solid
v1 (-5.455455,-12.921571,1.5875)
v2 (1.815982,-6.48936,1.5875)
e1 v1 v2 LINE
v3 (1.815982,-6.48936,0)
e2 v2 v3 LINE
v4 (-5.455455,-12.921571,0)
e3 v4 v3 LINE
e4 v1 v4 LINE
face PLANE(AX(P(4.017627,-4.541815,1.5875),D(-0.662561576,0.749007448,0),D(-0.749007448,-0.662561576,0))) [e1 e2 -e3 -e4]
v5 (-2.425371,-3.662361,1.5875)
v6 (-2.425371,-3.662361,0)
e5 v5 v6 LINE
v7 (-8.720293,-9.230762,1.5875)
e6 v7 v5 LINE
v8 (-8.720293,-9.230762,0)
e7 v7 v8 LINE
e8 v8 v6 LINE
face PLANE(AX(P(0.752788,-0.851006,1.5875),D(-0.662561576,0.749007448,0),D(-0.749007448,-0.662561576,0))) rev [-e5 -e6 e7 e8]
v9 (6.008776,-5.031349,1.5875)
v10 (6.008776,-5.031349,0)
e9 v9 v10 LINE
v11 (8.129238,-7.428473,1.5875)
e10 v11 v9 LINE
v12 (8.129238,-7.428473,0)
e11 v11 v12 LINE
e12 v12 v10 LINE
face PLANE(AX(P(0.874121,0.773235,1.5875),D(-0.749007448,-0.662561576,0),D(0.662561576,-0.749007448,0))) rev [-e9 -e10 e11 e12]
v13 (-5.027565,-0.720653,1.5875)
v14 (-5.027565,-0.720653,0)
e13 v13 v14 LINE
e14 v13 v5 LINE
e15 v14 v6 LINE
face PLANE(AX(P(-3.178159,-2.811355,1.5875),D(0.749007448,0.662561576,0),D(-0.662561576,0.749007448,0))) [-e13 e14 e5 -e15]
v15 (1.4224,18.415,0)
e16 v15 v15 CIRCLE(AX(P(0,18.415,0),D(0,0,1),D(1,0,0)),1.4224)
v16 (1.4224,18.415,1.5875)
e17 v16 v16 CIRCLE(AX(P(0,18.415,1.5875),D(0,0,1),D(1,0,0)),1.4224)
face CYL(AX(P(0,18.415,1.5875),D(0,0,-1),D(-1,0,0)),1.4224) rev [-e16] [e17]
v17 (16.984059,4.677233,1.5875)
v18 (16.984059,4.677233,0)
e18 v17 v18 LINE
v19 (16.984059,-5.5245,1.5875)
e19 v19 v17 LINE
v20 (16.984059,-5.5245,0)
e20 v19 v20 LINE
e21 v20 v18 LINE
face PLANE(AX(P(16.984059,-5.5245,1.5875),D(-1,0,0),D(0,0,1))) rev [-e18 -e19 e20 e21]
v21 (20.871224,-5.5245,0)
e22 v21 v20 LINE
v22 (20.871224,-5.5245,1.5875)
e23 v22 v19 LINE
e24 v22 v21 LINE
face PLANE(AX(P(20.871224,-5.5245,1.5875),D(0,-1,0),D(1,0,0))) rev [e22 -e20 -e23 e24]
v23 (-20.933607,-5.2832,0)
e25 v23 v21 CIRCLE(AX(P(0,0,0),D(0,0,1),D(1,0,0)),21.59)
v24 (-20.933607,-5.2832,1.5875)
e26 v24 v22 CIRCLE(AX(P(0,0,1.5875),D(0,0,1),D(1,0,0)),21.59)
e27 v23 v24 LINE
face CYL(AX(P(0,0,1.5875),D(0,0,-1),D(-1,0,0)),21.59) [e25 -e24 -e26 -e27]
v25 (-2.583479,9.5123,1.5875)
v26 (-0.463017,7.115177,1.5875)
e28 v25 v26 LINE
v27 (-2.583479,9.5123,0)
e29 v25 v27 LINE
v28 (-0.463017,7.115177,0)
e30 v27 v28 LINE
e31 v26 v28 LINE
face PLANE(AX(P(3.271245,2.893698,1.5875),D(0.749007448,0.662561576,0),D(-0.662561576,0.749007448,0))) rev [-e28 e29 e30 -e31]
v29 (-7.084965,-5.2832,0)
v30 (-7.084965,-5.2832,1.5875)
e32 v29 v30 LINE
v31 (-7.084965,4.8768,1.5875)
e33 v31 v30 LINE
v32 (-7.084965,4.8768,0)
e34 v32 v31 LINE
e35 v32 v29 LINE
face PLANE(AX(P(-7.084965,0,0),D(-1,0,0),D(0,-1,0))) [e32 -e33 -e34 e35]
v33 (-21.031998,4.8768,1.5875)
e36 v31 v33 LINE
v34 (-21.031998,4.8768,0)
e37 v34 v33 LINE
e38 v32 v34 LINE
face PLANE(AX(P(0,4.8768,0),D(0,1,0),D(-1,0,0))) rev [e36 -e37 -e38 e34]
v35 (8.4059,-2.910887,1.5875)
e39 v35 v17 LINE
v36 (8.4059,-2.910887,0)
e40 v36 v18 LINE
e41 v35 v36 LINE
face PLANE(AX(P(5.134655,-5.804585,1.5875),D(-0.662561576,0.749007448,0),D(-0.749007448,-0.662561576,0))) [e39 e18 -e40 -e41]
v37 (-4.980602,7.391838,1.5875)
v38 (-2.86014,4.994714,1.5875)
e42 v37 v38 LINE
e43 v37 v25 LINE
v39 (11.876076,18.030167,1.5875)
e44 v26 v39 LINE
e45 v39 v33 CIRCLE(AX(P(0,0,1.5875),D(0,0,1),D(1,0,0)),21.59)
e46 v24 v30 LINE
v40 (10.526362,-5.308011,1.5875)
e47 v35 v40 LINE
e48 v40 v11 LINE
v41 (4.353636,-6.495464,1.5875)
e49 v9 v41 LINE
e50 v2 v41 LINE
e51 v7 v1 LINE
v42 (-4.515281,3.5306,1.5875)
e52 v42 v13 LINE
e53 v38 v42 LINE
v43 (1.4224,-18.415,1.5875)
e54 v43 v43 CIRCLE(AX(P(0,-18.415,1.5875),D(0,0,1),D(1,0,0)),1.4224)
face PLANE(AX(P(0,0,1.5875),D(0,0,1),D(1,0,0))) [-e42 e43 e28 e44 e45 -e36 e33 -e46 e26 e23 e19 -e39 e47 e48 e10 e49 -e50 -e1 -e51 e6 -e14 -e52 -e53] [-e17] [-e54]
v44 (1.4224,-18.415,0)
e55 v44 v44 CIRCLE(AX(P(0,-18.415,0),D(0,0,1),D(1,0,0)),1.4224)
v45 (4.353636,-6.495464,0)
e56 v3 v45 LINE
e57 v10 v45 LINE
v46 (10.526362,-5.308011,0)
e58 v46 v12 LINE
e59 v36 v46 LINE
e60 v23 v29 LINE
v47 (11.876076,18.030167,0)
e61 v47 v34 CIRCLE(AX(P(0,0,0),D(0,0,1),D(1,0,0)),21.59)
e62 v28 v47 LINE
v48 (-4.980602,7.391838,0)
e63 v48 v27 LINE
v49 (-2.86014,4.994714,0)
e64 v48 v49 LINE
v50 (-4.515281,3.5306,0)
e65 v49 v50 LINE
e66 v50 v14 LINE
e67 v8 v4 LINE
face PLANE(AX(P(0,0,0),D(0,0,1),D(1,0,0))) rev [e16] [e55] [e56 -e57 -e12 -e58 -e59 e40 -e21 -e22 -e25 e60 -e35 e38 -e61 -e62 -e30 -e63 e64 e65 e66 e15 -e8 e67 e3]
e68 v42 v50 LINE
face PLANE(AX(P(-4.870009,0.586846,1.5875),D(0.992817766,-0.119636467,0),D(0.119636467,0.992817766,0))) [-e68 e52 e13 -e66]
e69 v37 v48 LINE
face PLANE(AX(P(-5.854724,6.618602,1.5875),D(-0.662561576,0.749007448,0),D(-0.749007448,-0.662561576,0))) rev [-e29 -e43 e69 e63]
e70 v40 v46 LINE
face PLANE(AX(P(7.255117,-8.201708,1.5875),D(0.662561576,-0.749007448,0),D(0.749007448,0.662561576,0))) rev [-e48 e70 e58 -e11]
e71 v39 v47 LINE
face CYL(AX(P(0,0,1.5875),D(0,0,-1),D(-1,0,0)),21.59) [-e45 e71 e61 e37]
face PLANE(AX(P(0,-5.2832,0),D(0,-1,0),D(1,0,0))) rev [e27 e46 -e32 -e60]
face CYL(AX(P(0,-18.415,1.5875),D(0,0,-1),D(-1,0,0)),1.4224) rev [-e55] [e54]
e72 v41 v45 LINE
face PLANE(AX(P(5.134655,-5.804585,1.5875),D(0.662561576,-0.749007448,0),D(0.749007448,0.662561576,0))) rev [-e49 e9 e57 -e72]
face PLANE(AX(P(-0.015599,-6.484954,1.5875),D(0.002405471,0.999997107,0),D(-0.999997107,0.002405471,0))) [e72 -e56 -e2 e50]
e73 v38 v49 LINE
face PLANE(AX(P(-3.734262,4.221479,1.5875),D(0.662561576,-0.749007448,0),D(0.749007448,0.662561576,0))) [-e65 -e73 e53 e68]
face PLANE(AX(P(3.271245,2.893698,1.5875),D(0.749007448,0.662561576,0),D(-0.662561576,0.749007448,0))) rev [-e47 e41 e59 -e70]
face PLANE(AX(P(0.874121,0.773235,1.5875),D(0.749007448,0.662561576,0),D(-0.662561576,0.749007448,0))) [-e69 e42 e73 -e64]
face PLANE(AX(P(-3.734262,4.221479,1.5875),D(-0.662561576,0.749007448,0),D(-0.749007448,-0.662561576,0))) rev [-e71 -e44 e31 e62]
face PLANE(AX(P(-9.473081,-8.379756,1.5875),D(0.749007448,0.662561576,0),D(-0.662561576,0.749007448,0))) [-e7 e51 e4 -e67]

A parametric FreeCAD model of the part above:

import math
import FreeCAD as App
import Part
import Sketcher
from FreeCAD import Vector
Q = App.Units.Quantity

doc = App.newDocument("Part")
body = doc.addObject("PartDesign::Body", "Body")

# Sketch on XY plane
sketch1 = body.newObject("Sketcher::SketchObject", "Sketch")
sketch1.AttachmentSupport = (doc.getObject("XY_Plane"), [""])
sketch1.MapMode = "FlatFace"
sketch1.addGeometry([
    Part.LineSegment(Vector(-5, -0.7, 0), Vector(-4.5, 3.5, 0)),  # 0
    Part.LineSegment(Vector(-4.5, 3.5, 0), Vector(-2.9, 5, 0)),  # 1
    Part.LineSegment(Vector(-2.9, 5, 0), Vector(-5, 7.4, 0)),  # 2
    Part.LineSegment(Vector(-5, 7.4, 0), Vector(-2.6, 9.5, 0)),  # 3
    Part.LineSegment(Vector(-2.6, 9.5, 0), Vector(-0.5, 7.1, 0)),  # 4
    Part.LineSegment(Vector(-0.5, 7.1, 0), Vector(11.9, 18, 0)),  # 5
    Part.ArcOfCircle(Part.Circle(Vector(0, 0, 0), Vector(0, 0, 1), 21.6), math.radians(57), math.radians(380)),  # 6
    Part.LineSegment(Vector(20.2, 7.5, 0), Vector(8.4, -2.9, 0)),  # 7
    Part.LineSegment(Vector(8.4, -2.9, 0), Vector(10.5, -5.3, 0)),  # 8
    Part.LineSegment(Vector(10.5, -5.3, 0), Vector(8.1, -7.4, 0)),  # 9
    Part.LineSegment(Vector(8.1, -7.4, 0), Vector(6, -5, 0)),  # 10
    Part.LineSegment(Vector(6, -5, 0), Vector(4.4, -6.5, 0)),  # 11
    Part.LineSegment(Vector(4.4, -6.5, 0), Vector(1.8, -6.5, 0)),  # 12
    Part.LineSegment(Vector(1.8, -6.5, 0), Vector(-5.5, -12.9, 0)),  # 13
    Part.LineSegment(Vector(-5.5, -12.9, 0), Vector(-8.7, -9.2, 0)),  # 14
    Part.LineSegment(Vector(-8.7, -9.2, 0), Vector(-2.4, -3.7, 0)),  # 15
    Part.LineSegment(Vector(-2.4, -3.7, 0), Vector(-5, -0.7, 0)),  # 16
    Part.Circle(Vector(0, -18.4, 0), Vector(0, 0, 1), 1.4),  # 17
    Part.Circle(Vector(0, 18.4, 0), Vector(0, 0, 1), 1.4),  # 18
], False)
sketch1.addConstraint([
    Sketcher.Constraint("Coincident", 0, 2, 1, 1),
    Sketcher.Constraint("Coincident", 1, 2, 2, 1),
    Sketcher.Constraint("Coincident", 2, 2, 3, 1),
    Sketcher.Constraint("Coincident", 3, 2, 4, 1),
    Sketcher.Constraint("Coincident", 4, 2, 5, 1),
    Sketcher.Constraint("Coincident", 5, 2, 6, 1),
    Sketcher.Constraint("Coincident", 6, 2, 7, 1),
    Sketcher.Constraint("Coincident", 7, 2, 8, 1),
    Sketcher.Constraint("Coincident", 8, 2, 9, 1),
    Sketcher.Constraint("Coincident", 9, 2, 10, 1),
    Sketcher.Constraint("Coincident", 10, 2, 11, 1),
    Sketcher.Constraint("Coincident", 11, 2, 12, 1),
    Sketcher.Constraint("Coincident", 12, 2, 13, 1),
    Sketcher.Constraint("Coincident", 13, 2, 14, 1),
    Sketcher.Constraint("Coincident", 14, 2, 15, 1),
    Sketcher.Constraint("Coincident", 15, 2, 16, 1),
    Sketcher.Constraint("Coincident", 16, 2, 0, 1),
    Sketcher.Constraint("Coincident", 6, 3, -1, 1),
    Sketcher.Constraint("Equal", 17, 18),
    Sketcher.Constraint("Symmetric", 17, 3, 18, 3, -1, 1),
    Sketcher.Constraint("PointOnObject", 17, 3, -2),
    Sketcher.Constraint("Perpendicular", 1, 2),
    Sketcher.Constraint("Perpendicular", 2, 3),
    Sketcher.Constraint("Perpendicular", 3, 4),
    Sketcher.Constraint("Perpendicular", 4, 5),
    Sketcher.Constraint("Parallel", 5, 7),
    Sketcher.Constraint("Perpendicular", 7, 8),
    Sketcher.Constraint("Perpendicular", 8, 9),
    Sketcher.Constraint("Perpendicular", 9, 10),
    Sketcher.Constraint("Perpendicular", 10, 11),
    Sketcher.Constraint("Parallel", 11, 13),
    Sketcher.Constraint("Perpendicular", 13, 14),
    Sketcher.Constraint("Perpendicular", 14, 15),
    Sketcher.Constraint("Perpendicular", 15, 16),
    Sketcher.Constraint("Equal", 2, 3),
    Sketcher.Constraint("Equal", 3, 4),
    Sketcher.Constraint("Equal", 4, 8),
    Sketcher.Constraint("Equal", 8, 9),
    Sketcher.Constraint("Equal", 9, 10),
    Sketcher.Constraint("Equal", 1, 11),
    Sketcher.Constraint("Radius", 6, Q("0.85 in")),
    Sketcher.Constraint("Diameter", 17, Q("0.112 in")),
    Sketcher.Constraint("DistanceY", 17, 3, 18, 3, Q("1.45 in")),
    Sketcher.Constraint("Distance", 2, Q("0.126 in")),
    Sketcher.Constraint("Distance", 14, Q("0.194 in")),
    Sketcher.Constraint("DistanceY", -1, 1, 0, 2, Q("0.139 in")),
    Sketcher.Constraint("DistanceY", -1, 1, 3, 2, Q("0.3745 in")),
    Sketcher.Constraint("DistanceX", -1, 1, 7, 2, Q("8.4059 mm")),
    Sketcher.Constraint("DistanceY", 7, 2, 1, 2, Q("7.905602 mm")),
    Sketcher.Constraint("DistanceY", 14, 2, 11, 2, Q("2.735298 mm")),
    Sketcher.Constraint("DistanceY", 12, 2, 15, 2, Q("2.826998 mm")),
    Sketcher.Constraint("DistanceY", 14, 2, 15, 2, Q("5.568401 mm")),
    Sketcher.Constraint("Distance", 1, Q("2.209779 mm")),
    Sketcher.Constraint("Distance", 12, Q("2.537661 mm")),
    Sketcher.Constraint("DistanceX", 0, 2, -1, 1, Q("4.515281 mm")),
    Sketcher.Constraint("DistanceY", 15, 2, 16, 2, Q("2.941709 mm")),
])
pad1 = body.newObject("PartDesign::Pad", "Pad")
pad1.Profile = sketch1
pad1.Length = Q("0.0625 in")

# Sketch on XY plane
sketch2 = body.newObject("Sketcher::SketchObject", "Sketch001")
sketch2.AttachmentSupport = (doc.getObject("XY_Plane"), [""])
sketch2.MapMode = "FlatFace"
sketch2.AttachmentOffset = App.Placement(Vector(0, 0, 0.0625 * 25.4), App.Rotation())
sketch2.addGeometry([
    Part.LineSegment(Vector(-7, 5, 0), Vector(-21, 5, 0)),
    Part.ArcOfCircle(Part.Circle(Vector(0, 0, 0), Vector(0, 0, 1), 22), math.radians(167), math.radians(194)),
    Part.LineSegment(Vector(-21, -5, 0), Vector(-7, -5, 0)),
    Part.LineSegment(Vector(-7, -5, 0), Vector(-7, 5, 0)),
], False)
sketch2.addConstraint([
    Sketcher.Constraint("Coincident", 0, 2, 1, 1),
    Sketcher.Constraint("Coincident", 1, 2, 2, 1),
    Sketcher.Constraint("Coincident", 2, 2, 3, 1),
    Sketcher.Constraint("Coincident", 3, 2, 0, 1),
    Sketcher.Constraint("Horizontal", 0),
    Sketcher.Constraint("Horizontal", 2),
    Sketcher.Constraint("Vertical", 3),
    Sketcher.Constraint("Coincident", 1, 3, -1, 1),
    Sketcher.Constraint("Radius", 1, Q("0.85 in")),
    Sketcher.Constraint("DistanceY", 3, 1, 3, 2, Q("0.4 in")),
    Sketcher.Constraint("DistanceY", -1, 1, 0, 2, Q("0.192 in")),
    Sketcher.Constraint("DistanceX", 2, 1, 2, 2, Q("13.848642 mm")),
])
pocket1 = body.newObject("PartDesign::Pocket", "Pocket")
pocket1.Profile = sketch2
pocket1.Type = "ThroughAll"

# Sketch on XY plane
sketch3 = body.newObject("Sketcher::SketchObject", "Sketch002")
sketch3.AttachmentSupport = (doc.getObject("XY_Plane"), [""])
sketch3.MapMode = "FlatFace"
sketch3.addGeometry([
    Part.LineSegment(Vector(20.9, -5.5, 0), Vector(17, -5.5, 0)),
    Part.LineSegment(Vector(17, -5.5, 0), Vector(17, 4.7, 0)),
    Part.LineSegment(Vector(17, 4.7, 0), Vector(20.2, 7.5, 0)),
    Part.ArcOfCircle(Part.Circle(Vector(0, 0, 0), Vector(0, 0, 1), 21.6), math.radians(-15), math.radians(20)),
], False)
sketch3.addConstraint([
    Sketcher.Constraint("Coincident", 0, 2, 1, 1),
    Sketcher.Constraint("Coincident", 1, 2, 2, 1),
    Sketcher.Constraint("Coincident", 2, 2, 3, 2),
    Sketcher.Constraint("Coincident", 3, 1, 0, 1),
    Sketcher.Constraint("Horizontal", 0),
    Sketcher.Constraint("Vertical", 1),
    Sketcher.Constraint("Coincident", 3, 3, -1, 1),
    Sketcher.Constraint("Radius", 3, Q("0.85 in")),
    Sketcher.Constraint("DistanceY", 0, 2, -1, 1, Q("0.2175 in")),
    Sketcher.Constraint("DistanceX", 0, 2, 0, 1, Q("3.887165 mm")),
    Sketcher.Constraint("DistanceY", 1, 1, 1, 2, Q("10.201733 mm")),
    Sketcher.Constraint("DistanceX", -1, 1, 2, 2, Q("20.228042 mm")),
])
pocket2 = body.newObject("PartDesign::Pocket", "Pocket001")
pocket2.Profile = sketch3
pocket2.Type = "ThroughAll"
pocket2.Reversed = True

doc.recompute()
